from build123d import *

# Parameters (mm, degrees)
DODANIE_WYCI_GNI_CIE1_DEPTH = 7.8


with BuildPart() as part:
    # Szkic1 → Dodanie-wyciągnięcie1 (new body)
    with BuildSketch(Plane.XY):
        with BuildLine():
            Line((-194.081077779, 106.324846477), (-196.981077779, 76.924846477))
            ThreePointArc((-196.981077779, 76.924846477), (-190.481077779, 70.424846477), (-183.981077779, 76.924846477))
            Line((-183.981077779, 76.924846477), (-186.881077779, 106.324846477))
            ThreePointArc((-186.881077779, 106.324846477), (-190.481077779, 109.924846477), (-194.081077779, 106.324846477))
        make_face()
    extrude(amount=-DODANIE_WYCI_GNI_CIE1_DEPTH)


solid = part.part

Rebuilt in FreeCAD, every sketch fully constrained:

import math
import FreeCAD as App
import Part
import Sketcher

V = App.Vector

doc = App.newDocument("Part")
body = doc.addObject("PartDesign::Body", "Body")

sketch1 = doc.addObject("Sketcher::SketchObject", "Sketch")
body.addObject(sketch1)
sketch1.AttachmentSupport = (doc.XY_Plane, [""])
sketch1.MapMode = "FlatFace"
sketch1.addGeometry([
    Part.LineSegment(V(-194.1, 106.3, 0), V(-197, 76.9, 0)),
    Part.ArcOfCircle(Part.Circle(V(-190.5, 76.9, 0), V(0, 0, 1), 6.5), math.radians(180), math.radians(360)),
    Part.LineSegment(V(-184, 76.9, 0), V(-186.9, 106.3, 0)),
    Part.ArcOfCircle(Part.Circle(V(-190.5, 106.3, 0), V(0, 0, 1), 3.6), math.radians(0), math.radians(180)),
], False)
sketch1.addConstraint([
    Sketcher.Constraint("Coincident", 0, 2, 1, 1),
    Sketcher.Constraint("Coincident", 1, 2, 2, 1),
    Sketcher.Constraint("Coincident", 2, 2, 3, 1),
    Sketcher.Constraint("Coincident", 3, 2, 0, 1),
    Sketcher.Constraint("Horizontal", 1, 3, 0, 2),
    Sketcher.Constraint("Horizontal", 0, 2, 1, 2),
    Sketcher.Constraint("Horizontal", 3, 3, 2, 2),
    Sketcher.Constraint("Horizontal", 2, 2, 3, 2),
    Sketcher.Constraint("Vertical", 1, 3, 3, 3),
    Sketcher.Constraint("Radius", 1, 6.5),
    Sketcher.Constraint("Radius", 3, 3.6),
    Sketcher.Constraint("DistanceY", 1, 3, 3, 3, 29.4),
    Sketcher.Constraint("DistanceX", 1, 3, -1, 1, 190.481078),
    Sketcher.Constraint("DistanceY", -1, 1, 1, 3, 76.924846),
])
pad1 = doc.addObject("PartDesign::Pad", "Pad")
body.addObject(pad1)
pad1.Profile = sketch1
pad1.Length = 7.8
pad1.Reversed = True

doc.recompute()
